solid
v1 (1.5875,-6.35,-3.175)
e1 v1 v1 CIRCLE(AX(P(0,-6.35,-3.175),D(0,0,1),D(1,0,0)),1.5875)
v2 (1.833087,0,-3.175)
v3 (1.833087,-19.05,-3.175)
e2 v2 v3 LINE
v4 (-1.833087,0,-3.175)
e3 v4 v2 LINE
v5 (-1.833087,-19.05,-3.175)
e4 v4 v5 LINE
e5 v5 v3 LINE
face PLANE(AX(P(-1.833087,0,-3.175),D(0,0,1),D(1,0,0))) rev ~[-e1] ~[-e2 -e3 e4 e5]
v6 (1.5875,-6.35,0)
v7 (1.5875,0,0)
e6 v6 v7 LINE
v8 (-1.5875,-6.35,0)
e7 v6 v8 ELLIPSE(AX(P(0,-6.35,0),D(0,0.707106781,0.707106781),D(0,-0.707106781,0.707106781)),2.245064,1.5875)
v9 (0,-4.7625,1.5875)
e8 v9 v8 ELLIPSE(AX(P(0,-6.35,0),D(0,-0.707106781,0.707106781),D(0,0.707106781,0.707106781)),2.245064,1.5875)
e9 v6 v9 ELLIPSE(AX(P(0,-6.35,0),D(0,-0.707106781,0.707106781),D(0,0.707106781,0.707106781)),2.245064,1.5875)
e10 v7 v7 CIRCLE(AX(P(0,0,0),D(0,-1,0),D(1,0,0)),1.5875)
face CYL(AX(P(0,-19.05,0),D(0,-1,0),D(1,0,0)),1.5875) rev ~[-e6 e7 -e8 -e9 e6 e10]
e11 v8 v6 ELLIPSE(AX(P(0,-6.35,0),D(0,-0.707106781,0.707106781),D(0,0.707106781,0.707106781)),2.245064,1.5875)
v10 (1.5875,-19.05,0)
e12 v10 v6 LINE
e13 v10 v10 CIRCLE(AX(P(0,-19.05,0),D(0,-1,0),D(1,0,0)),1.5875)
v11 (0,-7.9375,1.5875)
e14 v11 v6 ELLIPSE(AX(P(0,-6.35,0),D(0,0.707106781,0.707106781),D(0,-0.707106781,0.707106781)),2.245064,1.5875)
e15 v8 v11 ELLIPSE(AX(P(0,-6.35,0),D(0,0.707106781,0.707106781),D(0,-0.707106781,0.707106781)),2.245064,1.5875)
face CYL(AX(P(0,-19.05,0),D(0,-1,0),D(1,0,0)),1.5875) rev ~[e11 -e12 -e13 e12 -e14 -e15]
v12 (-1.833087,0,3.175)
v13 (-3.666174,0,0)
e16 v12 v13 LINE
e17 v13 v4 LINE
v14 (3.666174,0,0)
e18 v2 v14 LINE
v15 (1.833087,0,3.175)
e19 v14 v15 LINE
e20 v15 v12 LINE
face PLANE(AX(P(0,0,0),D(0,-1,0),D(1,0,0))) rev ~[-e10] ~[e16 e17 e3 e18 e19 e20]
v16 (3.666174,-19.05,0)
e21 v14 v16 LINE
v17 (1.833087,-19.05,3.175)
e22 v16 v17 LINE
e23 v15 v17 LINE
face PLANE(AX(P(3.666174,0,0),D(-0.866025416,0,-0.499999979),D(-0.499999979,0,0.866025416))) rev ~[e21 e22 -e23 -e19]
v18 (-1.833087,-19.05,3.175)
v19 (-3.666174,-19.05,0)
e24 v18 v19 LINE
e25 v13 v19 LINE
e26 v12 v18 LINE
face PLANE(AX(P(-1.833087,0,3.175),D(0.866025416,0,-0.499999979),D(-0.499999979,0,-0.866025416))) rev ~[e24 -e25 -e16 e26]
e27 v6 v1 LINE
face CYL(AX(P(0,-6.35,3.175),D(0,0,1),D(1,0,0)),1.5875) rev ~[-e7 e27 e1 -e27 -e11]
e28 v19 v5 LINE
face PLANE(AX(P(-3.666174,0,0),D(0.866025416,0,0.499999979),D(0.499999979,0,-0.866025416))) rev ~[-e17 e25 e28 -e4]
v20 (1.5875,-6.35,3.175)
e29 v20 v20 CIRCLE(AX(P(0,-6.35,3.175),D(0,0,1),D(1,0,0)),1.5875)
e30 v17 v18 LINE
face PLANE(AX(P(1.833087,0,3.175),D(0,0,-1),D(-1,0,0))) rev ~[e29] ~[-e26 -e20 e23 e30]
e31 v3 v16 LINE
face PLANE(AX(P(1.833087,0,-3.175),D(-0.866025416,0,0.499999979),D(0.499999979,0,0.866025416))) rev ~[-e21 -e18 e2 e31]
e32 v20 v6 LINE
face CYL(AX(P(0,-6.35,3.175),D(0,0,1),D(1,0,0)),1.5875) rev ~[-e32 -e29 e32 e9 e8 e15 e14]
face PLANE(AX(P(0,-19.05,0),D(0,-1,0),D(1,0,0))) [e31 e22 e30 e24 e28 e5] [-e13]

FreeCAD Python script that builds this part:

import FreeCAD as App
import Part
import Sketcher

V = App.Vector
Q = App.Units.Quantity


def add_polygon(sketch, points):
    """Adds a closed chain of lines whose ends are joined by coincident constraints."""
    first, n = sketch.GeometryCount, len(points)
    for a, b in zip(points, points[1:] + points[:1]):
        sketch.addGeometry(Part.LineSegment(App.Vector(*a, 0), App.Vector(*b, 0)), False)
    for i in range(n):
        sketch.addConstraint(Sketcher.Constraint("Coincident", first + i, 2, first + (i + 1) % n, 1))

doc = App.newDocument("Part")
body = doc.addObject("PartDesign::Body", "Body")

sketch1 = body.newObject("Sketcher::SketchObject", "Sketch")
sketch1.AttachmentSupport = (doc.getObject("XZ_Plane"), [""])
sketch1.MapMode = "FlatFace"
add_polygon(sketch1, [(1.8, 3.2), (-1.8, 3.2), (-3.7, 0), (-1.8, -3.2), (1.8, -3.2), (3.7, 0)])
sketch1.addConstraint(Sketcher.Constraint("Horizontal", 0))
sketch1.addConstraint(Sketcher.Constraint("Horizontal", 3))
sketch1.addConstraint(Sketcher.Constraint("Symmetric", 0, 2, 3, 2, -1, 1))
sketch1.addConstraint(Sketcher.Constraint("Symmetric", 1, 2, 4, 2, -1, 1))
sketch1.addConstraint(Sketcher.Constraint("PointOnObject", 1, 2, -1))
sketch1.addConstraint(Sketcher.Constraint("Parallel", 2, 5))
sketch1.addConstraint(Sketcher.Constraint("Vertical", 0, 2, 2, 2))
sketch1.addConstraint(Sketcher.Constraint("Angle", 1, Q("-119.999999 deg")))
sketch1.addConstraint(Sketcher.Constraint("DistanceY", 2, 2, 0, 2, Q("0.25 in")))
sketch1.addConstraint(Sketcher.Constraint("DistanceX", 0, 2, 0, 1, Q("3.666174 mm")))
pad1 = body.newObject("PartDesign::Pad", "Pad")
pad1.Profile = sketch1
pad1.Length = Q("0.75 in")

sketch2 = body.newObject("Sketcher::SketchObject", "Sketch001")
sketch2.AttachmentSupport = (doc.getObject("XY_Plane"), [""])
sketch2.MapMode = "FlatFace"
sketch2.AttachmentOffset = App.Placement(V(0, 0, 0.125 * 25.4), App.Rotation())
sketch2.addGeometry(Part.Circle(V(0, -6.3, 0), V(0, 0, 1), 1.6), False)
sketch2.addConstraint(Sketcher.Constraint("PointOnObject", 0, 3, -2))
sketch2.addConstraint(Sketcher.Constraint("Diameter", 0, Q("0.125 in")))
sketch2.addConstraint(Sketcher.Constraint("DistanceY", 0, 3, -1, 1, Q("0.25 in")))
pocket1 = body.newObject("PartDesign::Pocket", "Pocket")
pocket1.Profile = sketch2
pocket1.Type = "ThroughAll"

sketch3 = body.newObject("Sketcher::SketchObject", "Sketch002")
sketch3.AttachmentSupport = (doc.getObject("XZ_Plane"), [""])
sketch3.MapMode = "FlatFace"
sketch3.AttachmentOffset = App.Placement(V(0, 0, 0.75 * 25.4), App.Rotation())
sketch3.addGeometry(Part.Circle(V(0, 0, 0), V(0, 0, 1), 1.6), False)
sketch3.addConstraint(Sketcher.Constraint("Coincident", 0, 3, -1, 1))
sketch3.addConstraint(Sketcher.Constraint("Diameter", 0, Q("0.125 in")))
pocket2 = body.newObject("PartDesign::Pocket", "Pocket001")
pocket2.Profile = sketch3
pocket2.Type = "ThroughAll"

doc.recompute()
